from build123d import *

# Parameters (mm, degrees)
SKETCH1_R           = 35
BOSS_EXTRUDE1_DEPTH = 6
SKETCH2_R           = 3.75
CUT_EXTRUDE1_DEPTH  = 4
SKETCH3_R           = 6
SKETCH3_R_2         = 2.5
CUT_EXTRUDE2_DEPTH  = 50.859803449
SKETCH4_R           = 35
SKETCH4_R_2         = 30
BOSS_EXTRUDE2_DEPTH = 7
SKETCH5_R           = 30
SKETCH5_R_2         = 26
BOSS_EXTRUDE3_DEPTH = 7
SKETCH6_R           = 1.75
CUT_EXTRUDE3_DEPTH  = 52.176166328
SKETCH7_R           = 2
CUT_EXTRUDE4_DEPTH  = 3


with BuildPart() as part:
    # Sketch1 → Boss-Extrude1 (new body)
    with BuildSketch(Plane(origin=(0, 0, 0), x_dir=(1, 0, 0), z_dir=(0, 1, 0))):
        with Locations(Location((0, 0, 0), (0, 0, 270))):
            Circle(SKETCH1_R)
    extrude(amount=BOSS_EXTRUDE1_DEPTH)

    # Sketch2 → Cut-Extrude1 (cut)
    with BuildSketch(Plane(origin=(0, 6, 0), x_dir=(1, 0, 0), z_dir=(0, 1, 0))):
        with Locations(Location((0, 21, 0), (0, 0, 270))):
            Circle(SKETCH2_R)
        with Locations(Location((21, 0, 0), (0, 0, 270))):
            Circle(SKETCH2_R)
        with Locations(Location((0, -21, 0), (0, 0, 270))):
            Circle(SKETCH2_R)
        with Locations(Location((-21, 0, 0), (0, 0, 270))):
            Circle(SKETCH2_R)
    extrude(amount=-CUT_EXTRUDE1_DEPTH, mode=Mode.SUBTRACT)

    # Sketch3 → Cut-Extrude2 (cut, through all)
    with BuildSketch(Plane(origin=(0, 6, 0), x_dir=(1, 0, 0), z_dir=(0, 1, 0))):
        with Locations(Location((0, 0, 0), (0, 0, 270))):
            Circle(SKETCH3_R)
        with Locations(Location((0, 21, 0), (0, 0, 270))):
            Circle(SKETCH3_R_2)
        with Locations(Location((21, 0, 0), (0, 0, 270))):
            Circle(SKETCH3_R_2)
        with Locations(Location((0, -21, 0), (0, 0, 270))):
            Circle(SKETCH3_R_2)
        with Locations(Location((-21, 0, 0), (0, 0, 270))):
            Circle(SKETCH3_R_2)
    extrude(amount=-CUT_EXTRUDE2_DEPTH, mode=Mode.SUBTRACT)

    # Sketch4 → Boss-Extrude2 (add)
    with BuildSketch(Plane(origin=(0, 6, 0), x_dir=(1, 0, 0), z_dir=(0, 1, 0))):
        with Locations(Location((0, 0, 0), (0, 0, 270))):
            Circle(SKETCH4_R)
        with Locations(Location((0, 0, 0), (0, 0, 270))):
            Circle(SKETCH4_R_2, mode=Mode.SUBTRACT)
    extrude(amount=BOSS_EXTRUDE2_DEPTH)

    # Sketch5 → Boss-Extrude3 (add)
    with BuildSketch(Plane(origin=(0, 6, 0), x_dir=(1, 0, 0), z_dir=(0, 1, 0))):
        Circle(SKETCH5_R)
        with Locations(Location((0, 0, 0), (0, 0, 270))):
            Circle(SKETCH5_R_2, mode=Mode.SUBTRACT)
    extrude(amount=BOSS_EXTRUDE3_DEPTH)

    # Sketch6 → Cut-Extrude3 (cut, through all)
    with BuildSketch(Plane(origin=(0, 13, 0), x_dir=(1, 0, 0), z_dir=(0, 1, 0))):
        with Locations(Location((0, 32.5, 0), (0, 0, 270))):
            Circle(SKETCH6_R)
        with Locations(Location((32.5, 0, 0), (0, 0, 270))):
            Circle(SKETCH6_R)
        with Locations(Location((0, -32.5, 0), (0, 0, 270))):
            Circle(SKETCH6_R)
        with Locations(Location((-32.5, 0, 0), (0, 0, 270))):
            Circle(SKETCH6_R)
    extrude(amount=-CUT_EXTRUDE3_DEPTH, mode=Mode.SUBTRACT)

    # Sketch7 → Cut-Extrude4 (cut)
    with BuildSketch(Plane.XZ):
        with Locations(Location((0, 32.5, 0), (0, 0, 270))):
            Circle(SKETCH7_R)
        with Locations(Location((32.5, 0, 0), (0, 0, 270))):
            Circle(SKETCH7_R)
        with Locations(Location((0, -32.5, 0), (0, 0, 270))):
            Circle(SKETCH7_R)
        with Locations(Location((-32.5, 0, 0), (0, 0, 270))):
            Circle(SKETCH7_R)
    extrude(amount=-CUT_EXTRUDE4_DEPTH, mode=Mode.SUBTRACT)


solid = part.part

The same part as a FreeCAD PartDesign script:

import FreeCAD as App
import Part
import Sketcher
from FreeCAD import Vector

doc = App.newDocument("Part")
body = doc.addObject("PartDesign::Body", "Body")

sketch1 = body.newObject("Sketcher::SketchObject", "Sketch")
sketch1.AttachmentSupport = (doc.getObject("XZ_Plane"), [""])
sketch1.MapMode = "FlatFace"
sketch1.addGeometry(Part.Circle(Vector(0, 0, 0), Vector(0, 0, 1), 35), False)
sketch1.addConstraint(Sketcher.Constraint("Coincident", 0, 3, -1, 1))
sketch1.addConstraint(Sketcher.Constraint("Diameter", 0, 70.0))
pad1 = body.newObject("PartDesign::Pad", "Pad")
pad1.Profile = sketch1
pad1.Length = 6
pad1.Reversed = True

sketch2 = body.newObject("Sketcher::SketchObject", "Sketch001")
sketch2.AttachmentSupport = (doc.getObject("XZ_Plane"), [""])
sketch2.MapMode = "FlatFace"
sketch2.AttachmentOffset = App.Placement(Vector(0, 0, -6), App.Rotation())
sketch2.addGeometry(Part.Circle(Vector(0, -21, 0), Vector(0, 0, 1), 3.8), False)
sketch2.addGeometry(Part.Circle(Vector(21, 0, 0), Vector(0, 0, 1), 3.8), False)
sketch2.addGeometry(Part.Circle(Vector(0, 21, 0), Vector(0, 0, 1), 3.8), False)
sketch2.addGeometry(Part.Circle(Vector(-21, 0, 0), Vector(0, 0, 1), 3.8), False)
sketch2.addConstraint(Sketcher.Constraint("Equal", 0, 1))
sketch2.addConstraint(Sketcher.Constraint("Equal", 1, 2))
sketch2.addConstraint(Sketcher.Constraint("Equal", 2, 3))
sketch2.addConstraint(Sketcher.Constraint("Symmetric", 0, 3, 2, 3, -1, 1))
sketch2.addConstraint(Sketcher.Constraint("Symmetric", 1, 3, 3, 3, -1, 1))
sketch2.addConstraint(Sketcher.Constraint("PointOnObject", 0, 3, -2))
sketch2.addConstraint(Sketcher.Constraint("PointOnObject", 1, 3, -1))
sketch2.addConstraint(Sketcher.Constraint("Diameter", 0, 7.5))
sketch2.addConstraint(Sketcher.Constraint("DistanceY", 0, 3, -1, 1, 21.0))
sketch2.addConstraint(Sketcher.Constraint("DistanceX", -1, 1, 1, 3, 21.0))
pocket1 = body.newObject("PartDesign::Pocket", "Pocket")
pocket1.Profile = sketch2
pocket1.Length = 4
pocket1.Reversed = True

sketch3 = body.newObject("Sketcher::SketchObject", "Sketch002")
sketch3.AttachmentSupport = (doc.getObject("XZ_Plane"), [""])
sketch3.MapMode = "FlatFace"
sketch3.AttachmentOffset = App.Placement(Vector(0, 0, -6), App.Rotation())
sketch3.addGeometry(Part.Circle(Vector(0, 0, 0), Vector(0, 0, 1), 6), False)
sketch3.addGeometry(Part.Circle(Vector(0, -21, 0), Vector(0, 0, 1), 2.5), False)
sketch3.addGeometry(Part.Circle(Vector(21, 0, 0), Vector(0, 0, 1), 2.5), False)
sketch3.addGeometry(Part.Circle(Vector(0, 21, 0), Vector(0, 0, 1), 2.5), False)
sketch3.addGeometry(Part.Circle(Vector(-21, 0, 0), Vector(0, 0, 1), 2.5), False)
sketch3.addConstraint(Sketcher.Constraint("Coincident", 0, 3, -1, 1))
sketch3.addConstraint(Sketcher.Constraint("Equal", 1, 2))
sketch3.addConstraint(Sketcher.Constraint("Equal", 2, 3))
sketch3.addConstraint(Sketcher.Constraint("Equal", 3, 4))
sketch3.addConstraint(Sketcher.Constraint("Symmetric", 1, 3, 3, 3, -1, 1))
sketch3.addConstraint(Sketcher.Constraint("Symmetric", 2, 3, 4, 3, -1, 1))
sketch3.addConstraint(Sketcher.Constraint("PointOnObject", 1, 3, -2))
sketch3.addConstraint(Sketcher.Constraint("PointOnObject", 2, 3, -1))
sketch3.addConstraint(Sketcher.Constraint("Diameter", 0, 12.0))
sketch3.addConstraint(Sketcher.Constraint("Diameter", 1, 5.0))
sketch3.addConstraint(Sketcher.Constraint("DistanceY", 1, 3, -1, 1, 21.0))
sketch3.addConstraint(Sketcher.Constraint("DistanceX", -1, 1, 2, 3, 21.0))
pocket2 = body.newObject("PartDesign::Pocket", "Pocket001")
pocket2.Profile = sketch3
pocket2.Type = "ThroughAll"
pocket2.Reversed = True

sketch4 = body.newObject("Sketcher::SketchObject", "Sketch003")
sketch4.AttachmentSupport = (doc.getObject("XZ_Plane"), [""])
sketch4.MapMode = "FlatFace"
sketch4.AttachmentOffset = App.Placement(Vector(0, 0, -6), App.Rotation())
sketch4.addGeometry(Part.Circle(Vector(0, 0, 0), Vector(0, 0, 1), 35), False)
sketch4.addGeometry(Part.Circle(Vector(0, 0, 0), Vector(0, 0, 1), 30), False)
sketch4.addConstraint(Sketcher.Constraint("Coincident", 0, 3, -1, 1))
sketch4.addConstraint(Sketcher.Constraint("Coincident", 1, 3, -1, 1))
sketch4.addConstraint(Sketcher.Constraint("Diameter", 0, 70.0))
sketch4.addConstraint(Sketcher.Constraint("Diameter", 1, 60.0))
pad2 = body.newObject("PartDesign::Pad", "Pad001")
pad2.Profile = sketch4
pad2.Length = 7
pad2.Reversed = True

sketch5 = body.newObject("Sketcher::SketchObject", "Sketch004")
sketch5.AttachmentSupport = (doc.getObject("XZ_Plane"), [""])
sketch5.MapMode = "FlatFace"
sketch5.AttachmentOffset = App.Placement(Vector(0, 0, -6), App.Rotation())
sketch5.addGeometry(Part.Circle(Vector(0, 0, 0), Vector(0, 0, 1), 30), False)
sketch5.addGeometry(Part.Circle(Vector(0, 0, 0), Vector(0, 0, 1), 26), False)
sketch5.addConstraint(Sketcher.Constraint("Coincident", 0, 3, -1, 1))
sketch5.addConstraint(Sketcher.Constraint("Coincident", 1, 3, -1, 1))
sketch5.addConstraint(Sketcher.Constraint("Diameter", 0, 60.0))
sketch5.addConstraint(Sketcher.Constraint("Diameter", 1, 52.0))
pad3 = body.newObject("PartDesign::Pad", "Pad002")
pad3.Profile = sketch5
pad3.Length = 7
pad3.Reversed = True

sketch6 = body.newObject("Sketcher::SketchObject", "Sketch005")
sketch6.AttachmentSupport = (doc.getObject("XZ_Plane"), [""])
sketch6.MapMode = "FlatFace"
sketch6.AttachmentOffset = App.Placement(Vector(0, 0, -13), App.Rotation())
sketch6.addGeometry(Part.Circle(Vector(0, -32.5, 0), Vector(0, 0, 1), 1.8), False)
sketch6.addGeometry(Part.Circle(Vector(32.5, 0, 0), Vector(0, 0, 1), 1.8), False)
sketch6.addGeometry(Part.Circle(Vector(0, 32.5, 0), Vector(0, 0, 1), 1.8), False)
sketch6.addGeometry(Part.Circle(Vector(-32.5, 0, 0), Vector(0, 0, 1), 1.8), False)
sketch6.addConstraint(Sketcher.Constraint("Equal", 0, 1))
sketch6.addConstraint(Sketcher.Constraint("Equal", 1, 2))
sketch6.addConstraint(Sketcher.Constraint("Equal", 2, 3))
sketch6.addConstraint(Sketcher.Constraint("Symmetric", 0, 3, 2, 3, -1, 1))
sketch6.addConstraint(Sketcher.Constraint("Symmetric", 1, 3, 3, 3, -1, 1))
sketch6.addConstraint(Sketcher.Constraint("PointOnObject", 0, 3, -2))
sketch6.addConstraint(Sketcher.Constraint("PointOnObject", 1, 3, -1))
sketch6.addConstraint(Sketcher.Constraint("Diameter", 0, 3.5))
sketch6.addConstraint(Sketcher.Constraint("DistanceY", 0, 3, 2, 3, 65.0))
sketch6.addConstraint(Sketcher.Constraint("DistanceX", 3, 3, 1, 3, 65.0))
pocket3 = body.newObject("PartDesign::Pocket", "Pocket002")
pocket3.Profile = sketch6
pocket3.Type = "ThroughAll"
pocket3.Reversed = True

sketch7 = body.newObject("Sketcher::SketchObject", "Sketch006")
sketch7.AttachmentSupport = (doc.getObject("XZ_Plane"), [""])
sketch7.MapMode = "FlatFace"
sketch7.addGeometry(Part.Circle(Vector(0, 32.5, 0), Vector(0, 0, 1), 2), False)
sketch7.addGeometry(Part.Circle(Vector(32.5, 0, 0), Vector(0, 0, 1), 2), False)
sketch7.addGeometry(Part.Circle(Vector(0, -32.5, 0), Vector(0, 0, 1), 2), False)
sketch7.addGeometry(Part.Circle(Vector(-32.5, 0, 0), Vector(0, 0, 1), 2), False)
sketch7.addConstraint(Sketcher.Constraint("Equal", 0, 1))
sketch7.addConstraint(Sketcher.Constraint("Equal", 1, 2))
sketch7.addConstraint(Sketcher.Constraint("Equal", 2, 3))
sketch7.addConstraint(Sketcher.Constraint("Symmetric", 0, 3, 2, 3, -1, 1))
sketch7.addConstraint(Sketcher.Constraint("Symmetric", 1, 3, 3, 3, -1, 1))
sketch7.addConstraint(Sketcher.Constraint("PointOnObject", 0, 3, -2))
sketch7.addConstraint(Sketcher.Constraint("PointOnObject", 1, 3, -1))
sketch7.addConstraint(Sketcher.Constraint("Diameter", 0, 4.0))
sketch7.addConstraint(Sketcher.Constraint("DistanceY", 2, 3, 0, 3, 65.0))
sketch7.addConstraint(Sketcher.Constraint("DistanceX", 3, 3, 1, 3, 65.0))
pocket4 = body.newObject("PartDesign::Pocket", "Pocket003")
pocket4.Profile = sketch7
pocket4.Length = 3

doc.recompute()
